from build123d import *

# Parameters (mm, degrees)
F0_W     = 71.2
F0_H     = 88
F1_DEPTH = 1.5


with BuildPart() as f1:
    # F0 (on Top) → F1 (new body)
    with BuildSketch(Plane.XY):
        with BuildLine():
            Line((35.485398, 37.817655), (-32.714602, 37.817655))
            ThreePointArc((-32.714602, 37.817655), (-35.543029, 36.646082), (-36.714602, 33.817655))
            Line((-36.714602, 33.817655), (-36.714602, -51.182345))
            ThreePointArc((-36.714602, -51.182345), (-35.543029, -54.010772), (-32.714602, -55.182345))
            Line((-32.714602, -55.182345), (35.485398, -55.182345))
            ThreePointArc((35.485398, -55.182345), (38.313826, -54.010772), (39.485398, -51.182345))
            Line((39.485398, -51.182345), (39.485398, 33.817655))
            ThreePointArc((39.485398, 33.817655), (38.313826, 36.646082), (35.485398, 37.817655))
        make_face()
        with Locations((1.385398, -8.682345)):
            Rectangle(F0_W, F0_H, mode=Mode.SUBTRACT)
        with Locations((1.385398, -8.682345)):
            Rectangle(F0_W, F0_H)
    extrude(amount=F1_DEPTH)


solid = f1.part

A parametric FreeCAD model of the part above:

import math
import FreeCAD as App
import Part
import Sketcher

V = App.Vector

doc = App.newDocument("Part")
body = doc.addObject("PartDesign::Body", "Body")

# Sketch on XY plane
sketch1 = doc.addObject("Sketcher::SketchObject", "Sketch")
body.addObject(sketch1)
sketch1.AttachmentSupport = (doc.XY_Plane, [""])
sketch1.MapMode = "FlatFace"
sketch1.addGeometry(Part.LineSegment(V(35.5, 37.8, 0), V(-32.7, 37.8, 0)), False)
sketch1.addGeometry(Part.ArcOfCircle(Part.Circle(V(-32.7, 33.8, 0), V(0, 0, 1), 4), math.radians(90), math.radians(180)), False)
sketch1.addGeometry(Part.LineSegment(V(-36.7, 33.8, 0), V(-36.7, -51.2, 0)), False)
sketch1.addGeometry(Part.ArcOfCircle(Part.Circle(V(-32.7, -51.2, 0), V(0, 0, 1), 4), math.radians(-180), math.radians(-90)), False)
sketch1.addGeometry(Part.LineSegment(V(-32.7, -55.2, 0), V(35.5, -55.2, 0)), False)
sketch1.addGeometry(Part.ArcOfCircle(Part.Circle(V(35.5, -51.2, 0), V(0, 0, 1), 4), math.radians(-90), math.radians(0)), False)
sketch1.addGeometry(Part.LineSegment(V(39.5, -51.2, 0), V(39.5, 33.8, 0)), False)
sketch1.addGeometry(Part.ArcOfCircle(Part.Circle(V(35.5, 33.8, 0), V(0, 0, 1), 4), math.radians(0), math.radians(90)), False)
sketch1.addConstraint(Sketcher.Constraint("Tangent", 0, 2, 1, 1))
sketch1.addConstraint(Sketcher.Constraint("Tangent", 1, 2, 2, 1))
sketch1.addConstraint(Sketcher.Constraint("Tangent", 2, 2, 3, 1))
sketch1.addConstraint(Sketcher.Constraint("Tangent", 3, 2, 4, 1))
sketch1.addConstraint(Sketcher.Constraint("Tangent", 4, 2, 5, 1))
sketch1.addConstraint(Sketcher.Constraint("Tangent", 5, 2, 6, 1))
sketch1.addConstraint(Sketcher.Constraint("Tangent", 6, 2, 7, 1))
sketch1.addConstraint(Sketcher.Constraint("Tangent", 7, 2, 0, 1))
sketch1.addConstraint(Sketcher.Constraint("Horizontal", 0))
sketch1.addConstraint(Sketcher.Constraint("Vertical", 2))
sketch1.addConstraint(Sketcher.Constraint("Horizontal", 4))
sketch1.addConstraint(Sketcher.Constraint("Vertical", 6))
sketch1.addConstraint(Sketcher.Constraint("Equal", 1, 3))
sketch1.addConstraint(Sketcher.Constraint("Equal", 3, 5))
sketch1.addConstraint(Sketcher.Constraint("Equal", 5, 7))
sketch1.addConstraint(Sketcher.Constraint("Radius", 1, 4.0))
sketch1.addConstraint(Sketcher.Constraint("DistanceY", 2, 2, 2, 1, 85.0))
sketch1.addConstraint(Sketcher.Constraint("DistanceX", 0, 2, 0, 1, 68.2))
sketch1.addConstraint(Sketcher.Constraint("DistanceX", 1, 3, -1, 1, 32.714602))
sketch1.addConstraint(Sketcher.Constraint("DistanceY", -1, 1, 1, 3, 33.817655))
pad1 = doc.addObject("PartDesign::Pad", "Pad")
body.addObject(pad1)
pad1.Profile = sketch1
pad1.Length = 1.5

doc.recompute()
